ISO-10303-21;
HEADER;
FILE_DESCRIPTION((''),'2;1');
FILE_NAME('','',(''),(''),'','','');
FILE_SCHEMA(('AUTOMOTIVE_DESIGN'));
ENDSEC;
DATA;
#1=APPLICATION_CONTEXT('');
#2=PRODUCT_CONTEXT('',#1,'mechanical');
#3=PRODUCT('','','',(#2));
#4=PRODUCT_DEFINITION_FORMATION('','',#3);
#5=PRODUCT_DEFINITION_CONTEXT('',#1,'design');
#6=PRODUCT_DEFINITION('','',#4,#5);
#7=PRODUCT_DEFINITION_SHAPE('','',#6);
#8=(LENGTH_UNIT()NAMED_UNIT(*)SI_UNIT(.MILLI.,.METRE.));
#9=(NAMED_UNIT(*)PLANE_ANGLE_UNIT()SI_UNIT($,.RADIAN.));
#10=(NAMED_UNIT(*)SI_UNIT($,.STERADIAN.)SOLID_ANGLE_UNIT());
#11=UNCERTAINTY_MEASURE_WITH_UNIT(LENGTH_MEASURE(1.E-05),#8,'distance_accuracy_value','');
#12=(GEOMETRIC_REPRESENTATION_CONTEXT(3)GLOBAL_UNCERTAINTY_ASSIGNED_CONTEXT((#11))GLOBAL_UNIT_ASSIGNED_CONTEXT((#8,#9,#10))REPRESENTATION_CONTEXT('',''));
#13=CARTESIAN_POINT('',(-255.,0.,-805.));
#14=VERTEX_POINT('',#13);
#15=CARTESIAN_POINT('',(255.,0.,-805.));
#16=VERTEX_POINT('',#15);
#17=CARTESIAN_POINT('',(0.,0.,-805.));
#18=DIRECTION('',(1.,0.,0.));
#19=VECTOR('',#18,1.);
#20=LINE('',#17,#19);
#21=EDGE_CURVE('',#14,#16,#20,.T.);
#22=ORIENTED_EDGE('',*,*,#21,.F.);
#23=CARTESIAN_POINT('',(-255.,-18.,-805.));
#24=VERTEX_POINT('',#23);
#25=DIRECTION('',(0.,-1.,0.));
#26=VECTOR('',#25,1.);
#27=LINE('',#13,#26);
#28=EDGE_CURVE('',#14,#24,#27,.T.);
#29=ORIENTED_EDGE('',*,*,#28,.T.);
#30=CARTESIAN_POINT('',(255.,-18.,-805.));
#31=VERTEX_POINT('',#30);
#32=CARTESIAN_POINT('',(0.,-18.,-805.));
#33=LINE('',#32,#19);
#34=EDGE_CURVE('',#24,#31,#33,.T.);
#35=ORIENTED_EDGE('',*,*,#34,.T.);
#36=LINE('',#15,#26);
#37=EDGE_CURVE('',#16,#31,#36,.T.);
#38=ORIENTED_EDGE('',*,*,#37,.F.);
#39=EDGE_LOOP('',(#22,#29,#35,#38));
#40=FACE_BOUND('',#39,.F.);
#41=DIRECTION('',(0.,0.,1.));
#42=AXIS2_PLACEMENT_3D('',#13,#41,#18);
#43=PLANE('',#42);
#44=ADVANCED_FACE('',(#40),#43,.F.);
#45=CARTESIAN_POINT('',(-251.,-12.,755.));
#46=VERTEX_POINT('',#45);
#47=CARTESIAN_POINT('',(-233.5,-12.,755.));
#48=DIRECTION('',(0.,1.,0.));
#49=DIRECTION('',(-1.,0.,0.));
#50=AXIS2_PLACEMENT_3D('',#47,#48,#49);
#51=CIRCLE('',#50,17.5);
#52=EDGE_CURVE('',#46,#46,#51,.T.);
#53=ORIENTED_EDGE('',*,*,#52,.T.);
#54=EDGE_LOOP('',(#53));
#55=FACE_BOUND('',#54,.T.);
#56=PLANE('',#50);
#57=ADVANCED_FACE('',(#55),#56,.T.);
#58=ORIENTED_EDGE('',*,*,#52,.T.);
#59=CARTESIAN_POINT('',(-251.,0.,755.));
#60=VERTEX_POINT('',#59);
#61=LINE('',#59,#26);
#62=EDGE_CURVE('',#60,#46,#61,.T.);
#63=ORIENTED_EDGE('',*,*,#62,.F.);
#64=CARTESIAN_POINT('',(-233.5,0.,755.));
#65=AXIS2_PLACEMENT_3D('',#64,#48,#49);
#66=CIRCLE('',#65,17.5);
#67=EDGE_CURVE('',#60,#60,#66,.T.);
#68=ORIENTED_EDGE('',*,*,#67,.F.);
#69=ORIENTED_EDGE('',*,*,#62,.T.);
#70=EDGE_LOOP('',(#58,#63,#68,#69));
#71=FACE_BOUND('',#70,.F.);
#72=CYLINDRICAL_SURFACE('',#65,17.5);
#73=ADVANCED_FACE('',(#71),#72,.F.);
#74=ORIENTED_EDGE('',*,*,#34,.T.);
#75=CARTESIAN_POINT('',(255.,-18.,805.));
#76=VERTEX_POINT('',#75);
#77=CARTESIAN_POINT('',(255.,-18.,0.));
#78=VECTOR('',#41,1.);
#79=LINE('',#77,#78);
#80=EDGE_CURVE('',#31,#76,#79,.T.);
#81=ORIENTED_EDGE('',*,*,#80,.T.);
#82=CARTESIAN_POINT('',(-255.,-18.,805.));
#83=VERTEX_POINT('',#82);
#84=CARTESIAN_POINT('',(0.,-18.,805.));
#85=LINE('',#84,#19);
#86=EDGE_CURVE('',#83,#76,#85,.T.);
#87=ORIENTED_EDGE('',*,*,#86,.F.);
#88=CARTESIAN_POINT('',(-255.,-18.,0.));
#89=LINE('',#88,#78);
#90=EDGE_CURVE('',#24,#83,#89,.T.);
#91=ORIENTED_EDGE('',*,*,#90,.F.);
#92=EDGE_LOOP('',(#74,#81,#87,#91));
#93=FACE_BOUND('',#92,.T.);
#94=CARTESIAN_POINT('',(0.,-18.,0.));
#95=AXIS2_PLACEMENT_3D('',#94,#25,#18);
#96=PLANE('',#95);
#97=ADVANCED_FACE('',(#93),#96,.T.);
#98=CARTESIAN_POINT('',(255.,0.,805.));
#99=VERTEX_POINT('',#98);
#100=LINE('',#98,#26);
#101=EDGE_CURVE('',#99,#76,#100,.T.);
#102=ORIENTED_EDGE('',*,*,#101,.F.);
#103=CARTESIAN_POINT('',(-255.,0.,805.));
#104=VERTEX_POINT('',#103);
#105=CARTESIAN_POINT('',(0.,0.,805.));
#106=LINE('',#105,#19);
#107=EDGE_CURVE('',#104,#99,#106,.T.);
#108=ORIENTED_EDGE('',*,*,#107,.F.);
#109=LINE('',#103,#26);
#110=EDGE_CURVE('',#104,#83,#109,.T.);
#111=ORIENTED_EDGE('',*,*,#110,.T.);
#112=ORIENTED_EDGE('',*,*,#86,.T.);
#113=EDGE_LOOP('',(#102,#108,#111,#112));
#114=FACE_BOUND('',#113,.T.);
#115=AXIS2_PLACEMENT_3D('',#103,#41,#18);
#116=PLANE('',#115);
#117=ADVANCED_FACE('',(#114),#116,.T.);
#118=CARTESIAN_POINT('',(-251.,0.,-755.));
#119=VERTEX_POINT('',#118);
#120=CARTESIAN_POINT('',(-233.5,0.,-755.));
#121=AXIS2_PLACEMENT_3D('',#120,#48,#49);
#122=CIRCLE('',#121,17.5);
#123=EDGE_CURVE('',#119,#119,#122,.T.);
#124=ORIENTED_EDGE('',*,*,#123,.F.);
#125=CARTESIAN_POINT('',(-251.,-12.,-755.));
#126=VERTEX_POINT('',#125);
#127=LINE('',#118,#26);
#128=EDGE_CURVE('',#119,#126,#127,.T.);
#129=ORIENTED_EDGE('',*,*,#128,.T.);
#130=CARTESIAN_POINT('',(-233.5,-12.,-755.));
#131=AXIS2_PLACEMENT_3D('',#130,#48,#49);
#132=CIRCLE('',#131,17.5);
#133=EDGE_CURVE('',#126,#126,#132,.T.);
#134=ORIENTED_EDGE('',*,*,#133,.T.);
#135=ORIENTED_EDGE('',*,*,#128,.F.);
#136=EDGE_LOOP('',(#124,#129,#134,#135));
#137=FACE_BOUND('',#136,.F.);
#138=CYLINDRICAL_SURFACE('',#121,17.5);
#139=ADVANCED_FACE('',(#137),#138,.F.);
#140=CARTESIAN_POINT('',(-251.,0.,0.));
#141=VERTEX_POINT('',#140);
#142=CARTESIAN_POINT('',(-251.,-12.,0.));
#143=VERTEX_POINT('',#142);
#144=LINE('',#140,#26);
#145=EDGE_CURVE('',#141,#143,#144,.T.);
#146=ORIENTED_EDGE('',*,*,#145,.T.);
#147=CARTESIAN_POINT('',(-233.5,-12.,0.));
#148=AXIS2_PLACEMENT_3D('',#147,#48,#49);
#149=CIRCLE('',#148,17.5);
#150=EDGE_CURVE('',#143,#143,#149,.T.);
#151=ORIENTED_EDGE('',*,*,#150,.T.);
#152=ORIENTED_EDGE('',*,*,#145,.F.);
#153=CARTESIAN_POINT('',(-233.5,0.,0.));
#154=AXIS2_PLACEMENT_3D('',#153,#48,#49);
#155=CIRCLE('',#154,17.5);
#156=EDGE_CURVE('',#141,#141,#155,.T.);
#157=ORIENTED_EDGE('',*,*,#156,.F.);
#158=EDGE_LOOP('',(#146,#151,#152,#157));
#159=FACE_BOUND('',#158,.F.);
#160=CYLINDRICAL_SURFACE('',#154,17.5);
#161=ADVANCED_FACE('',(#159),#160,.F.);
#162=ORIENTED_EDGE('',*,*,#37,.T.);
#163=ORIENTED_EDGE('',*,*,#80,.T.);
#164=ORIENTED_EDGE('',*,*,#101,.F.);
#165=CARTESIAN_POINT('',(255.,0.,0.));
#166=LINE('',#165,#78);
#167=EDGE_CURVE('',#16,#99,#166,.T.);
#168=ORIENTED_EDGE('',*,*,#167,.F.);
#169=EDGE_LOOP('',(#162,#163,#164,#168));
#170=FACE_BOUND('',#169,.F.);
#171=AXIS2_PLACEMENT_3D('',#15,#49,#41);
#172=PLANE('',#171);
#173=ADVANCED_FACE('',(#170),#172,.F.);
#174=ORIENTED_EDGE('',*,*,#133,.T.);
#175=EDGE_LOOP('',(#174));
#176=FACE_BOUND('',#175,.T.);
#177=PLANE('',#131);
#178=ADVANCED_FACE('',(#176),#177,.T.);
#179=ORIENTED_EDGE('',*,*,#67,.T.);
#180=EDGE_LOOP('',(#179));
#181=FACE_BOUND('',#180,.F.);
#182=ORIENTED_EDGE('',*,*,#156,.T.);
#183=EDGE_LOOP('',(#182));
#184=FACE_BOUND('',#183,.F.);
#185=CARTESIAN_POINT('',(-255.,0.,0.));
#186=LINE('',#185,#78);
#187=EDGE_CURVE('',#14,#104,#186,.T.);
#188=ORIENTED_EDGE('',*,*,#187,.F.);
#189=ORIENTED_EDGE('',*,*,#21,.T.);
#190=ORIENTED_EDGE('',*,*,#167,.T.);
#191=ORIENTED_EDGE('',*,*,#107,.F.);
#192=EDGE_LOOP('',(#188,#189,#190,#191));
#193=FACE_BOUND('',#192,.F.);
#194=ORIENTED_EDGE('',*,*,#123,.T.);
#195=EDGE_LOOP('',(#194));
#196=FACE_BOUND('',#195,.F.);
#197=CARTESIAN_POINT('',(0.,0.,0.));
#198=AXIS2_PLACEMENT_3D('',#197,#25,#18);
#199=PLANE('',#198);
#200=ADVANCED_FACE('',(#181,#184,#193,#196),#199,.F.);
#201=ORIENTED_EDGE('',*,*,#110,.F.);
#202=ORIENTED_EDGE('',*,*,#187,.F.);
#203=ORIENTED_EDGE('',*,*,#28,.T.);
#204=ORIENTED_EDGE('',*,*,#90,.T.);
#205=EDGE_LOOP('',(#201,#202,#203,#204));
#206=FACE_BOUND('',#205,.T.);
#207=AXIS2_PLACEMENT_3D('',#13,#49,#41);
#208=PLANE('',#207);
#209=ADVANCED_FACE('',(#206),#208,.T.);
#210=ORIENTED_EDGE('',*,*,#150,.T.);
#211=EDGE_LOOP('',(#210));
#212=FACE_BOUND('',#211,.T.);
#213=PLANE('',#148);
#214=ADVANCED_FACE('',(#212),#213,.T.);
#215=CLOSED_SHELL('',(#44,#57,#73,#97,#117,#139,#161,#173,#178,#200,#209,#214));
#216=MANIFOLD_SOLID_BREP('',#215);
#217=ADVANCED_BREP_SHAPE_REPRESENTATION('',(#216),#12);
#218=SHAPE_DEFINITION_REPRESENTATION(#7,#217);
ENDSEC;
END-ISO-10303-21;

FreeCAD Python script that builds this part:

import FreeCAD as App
import Part
import Sketcher
Q = App.Units.Quantity

doc = App.newDocument("Part")
body = doc.addObject("PartDesign::Body", "Body")

sketch1 = body.newObject("Sketcher::SketchObject", "Sketch")
sketch1.AttachmentSupport = (doc.getObject("XZ_Plane"), [""])
sketch1.MapMode = "FlatFace"
sketch1.addGeometry([
    Part.LineSegment(App.Vector(-255, 805, 0), App.Vector(-255, -805, 0)),
    Part.LineSegment(App.Vector(-255, -805, 0), App.Vector(255, -805, 0)),
    Part.LineSegment(App.Vector(255, -805, 0), App.Vector(255, 805, 0)),
    Part.LineSegment(App.Vector(255, 805, 0), App.Vector(-255, 805, 0)),
], False)
sketch1.addConstraint([
    Sketcher.Constraint("Coincident", 0, 2, 1, 1),
    Sketcher.Constraint("Coincident", 1, 2, 2, 1),
    Sketcher.Constraint("Coincident", 2, 2, 3, 1),
    Sketcher.Constraint("Coincident", 3, 2, 0, 1),
    Sketcher.Constraint("Vertical", 0),
    Sketcher.Constraint("Horizontal", 1),
    Sketcher.Constraint("Vertical", 2),
    Sketcher.Constraint("Horizontal", 3),
    Sketcher.Constraint("Symmetric", 0, 2, 2, 2, -1, 1),
    Sketcher.Constraint("DistanceX", 1, 1, 1, 2, Q("510 mm")),
    Sketcher.Constraint("DistanceY", 0, 2, 0, 1, Q("1610 mm")),
])
pad1 = body.newObject("PartDesign::Pad", "Pad")
pad1.Profile = sketch1
pad1.Length = 18

sketch2 = body.newObject("Sketcher::SketchObject", "Sketch001")
sketch2.AttachmentSupport = (doc.getObject("XZ_Plane"), [""])
sketch2.MapMode = "FlatFace"
sketch2.addGeometry([
    Part.Circle(App.Vector(-234, -755, 0), App.Vector(0, 0, 1), 18),
    Part.Circle(App.Vector(-234, 0, 0), App.Vector(0, 0, 1), 18),
    Part.Circle(App.Vector(-234, 755, 0), App.Vector(0, 0, 1), 18),
], False)
sketch2.addConstraint([
    Sketcher.Constraint("Equal", 0, 1),
    Sketcher.Constraint("Equal", 1, 2),
    Sketcher.Constraint("Symmetric", 0, 3, 2, 3, -1),
    Sketcher.Constraint("PointOnObject", 1, 3, -1),
    Sketcher.Constraint("Vertical", 0, 3, 1, 3),
    Sketcher.Constraint("Diameter", 0, Q("35 mm")),
    Sketcher.Constraint("DistanceY", 0, 3, -1, 1, Q("755 mm")),
    Sketcher.Constraint("DistanceX", 0, 3, -1, 1, Q("233.5 mm")),
])
pocket1 = body.newObject("PartDesign::Pocket", "Pocket")
pocket1.Profile = sketch2
pocket1.Length = 12
pocket1.Reversed = True

doc.recompute()
